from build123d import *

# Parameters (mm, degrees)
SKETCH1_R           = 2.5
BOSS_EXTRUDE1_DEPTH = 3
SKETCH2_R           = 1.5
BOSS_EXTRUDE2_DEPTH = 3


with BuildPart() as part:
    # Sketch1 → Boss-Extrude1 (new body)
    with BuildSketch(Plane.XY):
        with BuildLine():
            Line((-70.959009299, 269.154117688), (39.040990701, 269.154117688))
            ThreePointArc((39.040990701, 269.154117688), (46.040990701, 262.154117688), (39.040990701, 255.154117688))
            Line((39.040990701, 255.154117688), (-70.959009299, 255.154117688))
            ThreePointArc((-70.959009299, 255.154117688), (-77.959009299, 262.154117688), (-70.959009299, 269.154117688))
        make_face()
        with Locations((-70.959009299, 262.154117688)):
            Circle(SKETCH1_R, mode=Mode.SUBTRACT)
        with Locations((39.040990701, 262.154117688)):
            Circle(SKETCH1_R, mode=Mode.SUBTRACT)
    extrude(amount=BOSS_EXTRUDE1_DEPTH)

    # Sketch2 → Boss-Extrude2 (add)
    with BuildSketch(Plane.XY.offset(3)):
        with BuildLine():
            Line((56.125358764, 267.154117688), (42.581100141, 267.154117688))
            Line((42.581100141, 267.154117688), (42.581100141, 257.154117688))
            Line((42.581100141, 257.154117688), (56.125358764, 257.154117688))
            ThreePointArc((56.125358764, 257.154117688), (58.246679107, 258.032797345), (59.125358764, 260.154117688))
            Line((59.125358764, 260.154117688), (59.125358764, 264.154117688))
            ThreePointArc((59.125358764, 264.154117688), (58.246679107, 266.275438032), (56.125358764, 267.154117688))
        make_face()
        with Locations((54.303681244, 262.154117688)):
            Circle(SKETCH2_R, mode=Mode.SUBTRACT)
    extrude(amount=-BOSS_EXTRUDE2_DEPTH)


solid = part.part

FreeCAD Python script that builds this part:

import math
import FreeCAD as App
import Part
import Sketcher
from FreeCAD import Vector

doc = App.newDocument("Part")
params = doc.addObject("Spreadsheet::Sheet", "Params")
for row, (alias, value) in enumerate([
    ("sketch1_diameter", "5 mm"),
    ("sketch1_radius", "7 mm"),
    ("sketch1_width", "110 mm"),
    ("pad1_length", "3 mm"),
    ("sketch2_diameter", "3 mm"),
    ("sketch2_radius", "3 mm"),
    ("sketch2_height", "10 mm"),
    ("pad2_length", "3 mm"),
], start=1):
    params.set(f"A{row}", alias)
    params.set(f"B{row}", "=" + value)
    params.setAlias(f"B{row}", alias)

body = doc.addObject("PartDesign::Body", "Body")

# Sketch on XY plane
sketch1 = doc.addObject("Sketcher::SketchObject", "Sketch")
body.addObject(sketch1)
sketch1.AttachmentSupport = (doc.XY_Plane, [""])
sketch1.MapMode = "FlatFace"
sketch1.addGeometry([
    Part.LineSegment(Vector(39.040991, 269.154118, 0), Vector(-70.959009, 269.154118, 0)),  # 0
    Part.ArcOfCircle(Part.Circle(Vector(-70.959009, 262.154118, 0), Vector(0, 0, 1), 7), math.radians(90), math.radians(270)),  # 1
    Part.LineSegment(Vector(-70.959009, 255.154118, 0), Vector(39.040991, 255.154118, 0)),  # 2
    Part.ArcOfCircle(Part.Circle(Vector(39.040991, 262.154118, 0), Vector(0, 0, 1), 7), math.radians(-90), math.radians(90)),  # 3
    Part.Circle(Vector(39.040991, 262.154118, 0), Vector(0, 0, 1), 2.5),  # 4
    Part.Circle(Vector(-70.959009, 262.154118, 0), Vector(0, 0, 1), 2.5),  # 5
], False)
sketch1.addConstraint([
    Sketcher.Constraint("Tangent", 0, 2, 1, 1),
    Sketcher.Constraint("Tangent", 1, 2, 2, 1),
    Sketcher.Constraint("Tangent", 2, 2, 3, 1),
    Sketcher.Constraint("Tangent", 3, 2, 0, 1),
    Sketcher.Constraint("Horizontal", 0),
    Sketcher.Constraint("Horizontal", 2),
    Sketcher.Constraint("Coincident", 4, 3, 3, 3),
    Sketcher.Constraint("Coincident", 5, 3, 1, 3),
    Sketcher.Constraint("Equal", 4, 5),
    Sketcher.Constraint("Diameter", 4, 5.0),
    Sketcher.Constraint("Radius", 1, 7.0),
    Sketcher.Constraint("DistanceX", 0, 2, 0, 1, 110.0),
    Sketcher.Constraint("DistanceX", 1, 3, -1, 1, 70.959009),
    Sketcher.Constraint("DistanceY", -1, 1, 1, 3, 262.154118),
])
sketch1.setExpression("Constraints[9]", "Params.sketch1_diameter")
sketch1.setExpression("Constraints[10]", "Params.sketch1_radius")
sketch1.setExpression("Constraints[11]", "Params.sketch1_width")
pad1 = doc.addObject("PartDesign::Pad", "Pad")
body.addObject(pad1)
pad1.Profile = sketch1
pad1.setExpression("Length", "Params.pad1_length")

# Sketch on XY plane
sketch2 = doc.addObject("Sketcher::SketchObject", "Sketch001")
body.addObject(sketch2)
sketch2.AttachmentSupport = (doc.XY_Plane, [""])
sketch2.MapMode = "FlatFace"
sketch2.AttachmentOffset = App.Placement(Vector(0, 0, 3), App.Rotation())
sketch2.addGeometry([
    Part.LineSegment(Vector(56.125359, 267.154118, 0), Vector(42.5811, 267.154118, 0)),  # 0
    Part.LineSegment(Vector(42.5811, 267.154118, 0), Vector(42.5811, 257.154118, 0)),  # 1
    Part.LineSegment(Vector(42.5811, 257.154118, 0), Vector(56.125359, 257.154118, 0)),  # 2
    Part.ArcOfCircle(Part.Circle(Vector(56.125359, 260.154118, 0), Vector(0, 0, 1), 3), math.radians(-90), math.radians(0)),  # 3
    Part.LineSegment(Vector(59.125359, 260.154118, 0), Vector(59.125359, 264.154118, 0)),  # 4
    Part.ArcOfCircle(Part.Circle(Vector(56.125359, 264.154118, 0), Vector(0, 0, 1), 3), math.radians(0), math.radians(90)),  # 5
    Part.Circle(Vector(54.303681, 262.154118, 0), Vector(0, 0, 1), 1.5),  # 6
], False)
sketch2.addConstraint([
    Sketcher.Constraint("Coincident", 0, 2, 1, 1),
    Sketcher.Constraint("Coincident", 1, 2, 2, 1),
    Sketcher.Constraint("Tangent", 2, 2, 3, 1),
    Sketcher.Constraint("Tangent", 3, 2, 4, 1),
    Sketcher.Constraint("Tangent", 4, 2, 5, 1),
    Sketcher.Constraint("Tangent", 5, 2, 0, 1),
    Sketcher.Constraint("Horizontal", 0),
    Sketcher.Constraint("Vertical", 1),
    Sketcher.Constraint("Horizontal", 2),
    Sketcher.Constraint("Vertical", 4),
    Sketcher.Constraint("Equal", 3, 5),
    Sketcher.Constraint("Diameter", 6, 3.0),
    Sketcher.Constraint("Radius", 3, 3.0),
    Sketcher.Constraint("DistanceY", 1, 2, 1, 1, 10.0),
    Sketcher.Constraint("DistanceY", 3, 3, 6, 3, 2.0),
    Sketcher.Constraint("DistanceX", 0, 2, 0, 1, 13.544259),
    Sketcher.Constraint("DistanceX", -1, 1, 0, 2, 42.5811),
    Sketcher.Constraint("DistanceX", -1, 1, 6, 3, 54.303681),
    Sketcher.Constraint("DistanceY", -1, 1, 3, 3, 260.154118),
])
sketch2.setExpression("Constraints[11]", "Params.sketch2_diameter")
sketch2.setExpression("Constraints[12]", "Params.sketch2_radius")
sketch2.setExpression("Constraints[13]", "Params.sketch2_height")
pad2 = doc.addObject("PartDesign::Pad", "Pad001")
body.addObject(pad2)
pad2.Profile = sketch2
pad2.setExpression("Length", "Params.pad2_length")
pad2.Reversed = True

doc.recompute()
